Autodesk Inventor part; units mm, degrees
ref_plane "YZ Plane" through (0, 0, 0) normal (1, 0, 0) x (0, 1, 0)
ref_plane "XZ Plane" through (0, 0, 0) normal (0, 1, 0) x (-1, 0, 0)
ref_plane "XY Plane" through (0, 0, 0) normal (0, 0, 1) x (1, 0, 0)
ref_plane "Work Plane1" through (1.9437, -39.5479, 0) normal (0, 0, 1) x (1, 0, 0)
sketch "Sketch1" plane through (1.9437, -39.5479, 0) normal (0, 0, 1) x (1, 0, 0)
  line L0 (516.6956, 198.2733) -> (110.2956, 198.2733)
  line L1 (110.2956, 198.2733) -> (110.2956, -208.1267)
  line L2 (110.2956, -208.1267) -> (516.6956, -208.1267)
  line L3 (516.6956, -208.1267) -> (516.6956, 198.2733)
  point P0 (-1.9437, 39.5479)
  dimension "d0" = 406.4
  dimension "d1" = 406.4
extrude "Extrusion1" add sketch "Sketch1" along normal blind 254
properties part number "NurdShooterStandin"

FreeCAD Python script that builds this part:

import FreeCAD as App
import Part
import Sketcher

V = App.Vector
Q = App.Units.Quantity


def add_polygon(sketch, points):
    """Adds a closed chain of lines whose ends are joined by coincident constraints."""
    first, n = sketch.GeometryCount, len(points)
    for a, b in zip(points, points[1:] + points[:1]):
        sketch.addGeometry(Part.LineSegment(App.Vector(*a, 0), App.Vector(*b, 0)), False)
    for i in range(n):
        sketch.addConstraint(Sketcher.Constraint("Coincident", first + i, 2, first + (i + 1) % n, 1))

doc = App.newDocument("Part")
body = doc.addObject("PartDesign::Body", "Body")

# Sketch on XY plane
sketch1 = doc.addObject("Sketcher::SketchObject", "Sketch")
body.addObject(sketch1)
sketch1.AttachmentSupport = (doc.XY_Plane, [""])
sketch1.MapMode = "FlatFace"
add_polygon(sketch1, [(519, -248), (519, 159), (112, 159), (112, -248)])  # lines 0-3
sketch1.addConstraint([
    Sketcher.Constraint("Vertical", 0),
    Sketcher.Constraint("Horizontal", 1),
    Sketcher.Constraint("Vertical", 2),
    Sketcher.Constraint("Horizontal", 3),
    Sketcher.Constraint("Equal", 3, 0),
    Sketcher.Constraint("DistanceX", 1, 2, 1, 1, Q("16 in")),
    Sketcher.Constraint("DistanceX", -1, 1, 0, 2, 518.6393),
    Sketcher.Constraint("DistanceY", -1, 1, 0, 2, 158.7254),
])
pad1 = doc.addObject("PartDesign::Pad", "Pad")
body.addObject(pad1)
pad1.Profile = sketch1
pad1.Length = Q("10 in")

doc.recompute()
